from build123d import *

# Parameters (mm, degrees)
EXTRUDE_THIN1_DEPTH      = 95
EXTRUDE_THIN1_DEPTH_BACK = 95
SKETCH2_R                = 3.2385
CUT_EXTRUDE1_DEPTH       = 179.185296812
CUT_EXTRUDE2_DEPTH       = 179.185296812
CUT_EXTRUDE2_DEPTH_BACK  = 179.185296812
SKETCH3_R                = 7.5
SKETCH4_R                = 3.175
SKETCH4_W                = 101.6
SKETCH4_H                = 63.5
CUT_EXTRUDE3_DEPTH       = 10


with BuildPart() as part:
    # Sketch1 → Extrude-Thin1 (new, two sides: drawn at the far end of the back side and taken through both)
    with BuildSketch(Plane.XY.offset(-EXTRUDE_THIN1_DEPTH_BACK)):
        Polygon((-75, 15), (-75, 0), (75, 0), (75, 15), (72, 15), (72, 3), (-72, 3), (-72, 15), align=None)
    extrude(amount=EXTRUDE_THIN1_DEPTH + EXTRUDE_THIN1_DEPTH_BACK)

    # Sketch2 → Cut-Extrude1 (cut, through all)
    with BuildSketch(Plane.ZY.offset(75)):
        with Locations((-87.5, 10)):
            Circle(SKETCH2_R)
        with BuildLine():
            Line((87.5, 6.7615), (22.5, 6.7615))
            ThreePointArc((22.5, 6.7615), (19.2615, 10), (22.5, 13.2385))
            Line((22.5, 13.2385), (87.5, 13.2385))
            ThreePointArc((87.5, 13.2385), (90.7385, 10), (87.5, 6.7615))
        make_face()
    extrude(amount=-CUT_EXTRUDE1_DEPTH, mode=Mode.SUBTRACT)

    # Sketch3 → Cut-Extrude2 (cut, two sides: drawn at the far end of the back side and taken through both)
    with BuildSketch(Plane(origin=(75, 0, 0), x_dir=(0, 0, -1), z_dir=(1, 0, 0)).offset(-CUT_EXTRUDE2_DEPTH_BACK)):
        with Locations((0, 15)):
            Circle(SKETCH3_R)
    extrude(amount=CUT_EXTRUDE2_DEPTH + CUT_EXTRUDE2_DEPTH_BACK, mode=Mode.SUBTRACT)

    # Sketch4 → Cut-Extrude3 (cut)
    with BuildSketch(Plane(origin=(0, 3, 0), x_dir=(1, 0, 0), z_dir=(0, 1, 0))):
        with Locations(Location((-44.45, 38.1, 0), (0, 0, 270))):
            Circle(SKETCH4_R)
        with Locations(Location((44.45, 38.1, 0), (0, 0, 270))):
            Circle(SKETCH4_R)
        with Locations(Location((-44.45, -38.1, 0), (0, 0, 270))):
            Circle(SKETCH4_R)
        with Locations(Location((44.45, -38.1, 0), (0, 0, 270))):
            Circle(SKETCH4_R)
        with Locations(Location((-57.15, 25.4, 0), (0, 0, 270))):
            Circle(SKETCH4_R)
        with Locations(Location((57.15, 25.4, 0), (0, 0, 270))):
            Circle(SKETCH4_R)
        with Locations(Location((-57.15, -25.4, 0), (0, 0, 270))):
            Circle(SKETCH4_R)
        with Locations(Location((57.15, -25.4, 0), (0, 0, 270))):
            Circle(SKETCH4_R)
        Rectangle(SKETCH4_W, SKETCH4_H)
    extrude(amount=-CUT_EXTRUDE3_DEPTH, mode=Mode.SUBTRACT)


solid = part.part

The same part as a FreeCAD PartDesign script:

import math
import FreeCAD as App
import Part
import Sketcher

V = App.Vector


def add_polygon(sketch, points):
    """Adds a closed chain of lines whose ends are joined by coincident constraints."""
    first, n = sketch.GeometryCount, len(points)
    for a, b in zip(points, points[1:] + points[:1]):
        sketch.addGeometry(Part.LineSegment(App.Vector(*a, 0), App.Vector(*b, 0)), False)
    for i in range(n):
        sketch.addConstraint(Sketcher.Constraint("Coincident", first + i, 2, first + (i + 1) % n, 1))

doc = App.newDocument("Part")
params = doc.addObject("Spreadsheet::Sheet", "Params")
for row, (alias, value) in enumerate([
    ("sketch1_width", "150 mm"),
    ("sketch1_width2", "3 mm"),
    ("sketch1_height", "15 mm"),
    ("sketch1_height2", "12 mm"),
    ("pad1_length", "95 mm"),
    ("pad1_length2", "95 mm"),
    ("sketch2_height", "65 mm"),
    ("sketch3_diameter", "15 mm"),
    ("sketch4_diameter", "6.35 mm"),
    ("sketch4_width", "101.6 mm"),
    ("sketch4_height", "63.5 mm"),
    ("pocket3_length", "10 mm"),
], start=1):
    params.set(f"A{row}", alias)
    params.set(f"B{row}", "=" + value)
    params.setAlias(f"B{row}", alias)

body = doc.addObject("PartDesign::Body", "Body")

# Sketch on XY plane
sketch1 = doc.addObject("Sketcher::SketchObject", "Sketch")
body.addObject(sketch1)
sketch1.AttachmentSupport = (doc.XY_Plane, [""])
sketch1.MapMode = "FlatFace"
add_polygon(sketch1, [(-75, 15), (-75, 0), (75, 0), (75, 15), (72, 15), (72, 3), (-72, 3), (-72, 15)])  # lines 0-7
sketch1.addConstraint(Sketcher.Constraint("Vertical", 0))
sketch1.addConstraint(Sketcher.Constraint("Horizontal", 1))
sketch1.addConstraint(Sketcher.Constraint("Vertical", 2))
sketch1.addConstraint(Sketcher.Constraint("Horizontal", 3))
sketch1.addConstraint(Sketcher.Constraint("Vertical", 4))
sketch1.addConstraint(Sketcher.Constraint("Horizontal", 5))
sketch1.addConstraint(Sketcher.Constraint("Vertical", 6))
sketch1.addConstraint(Sketcher.Constraint("Horizontal", 7))
sketch1.addConstraint(Sketcher.Constraint("Symmetric", 0, 2, 1, 2, -1, 1))
sketch1.addConstraint(Sketcher.Constraint("Symmetric", 3, 2, 6, 2, -2))
sketch1.addConstraint(Sketcher.Constraint("DistanceX", 1, 1, 1, 2, 150.0))
sketch1.addConstraint(Sketcher.Constraint("DistanceX", 3, 2, 3, 1, 3.0))
sketch1.addConstraint(Sketcher.Constraint("DistanceY", 0, 2, 0, 1, 15.0))
sketch1.addConstraint(Sketcher.Constraint("DistanceY", 4, 2, 4, 1, 12.0))
sketch1.setExpression("Constraints[18]", "Params.sketch1_width")
sketch1.setExpression("Constraints[19]", "Params.sketch1_width2")
sketch1.setExpression("Constraints[20]", "Params.sketch1_height")
sketch1.setExpression("Constraints[21]", "Params.sketch1_height2")
pad1 = doc.addObject("PartDesign::Pad", "Pad")
body.addObject(pad1)
pad1.Profile = sketch1
pad1.Type = "TwoLengths"
pad1.setExpression("Length", "Params.pad1_length")
pad1.setExpression("Length2", "Params.pad1_length2")

# Sketch on YZ plane
sketch2 = doc.addObject("Sketcher::SketchObject", "Sketch001")
body.addObject(sketch2)
sketch2.AttachmentSupport = (doc.YZ_Plane, [""])
sketch2.MapMode = "FlatFace"
sketch2.AttachmentOffset = App.Placement(V(0, 0, -75), App.Rotation())
sketch2.addGeometry(Part.Circle(V(10, -87.5, 0), V(0, 0, 1), 3.2), False)
sketch2.addGeometry(Part.LineSegment(V(6.8, 22.5, 0), V(6.8, 87.5, 0)), False)
sketch2.addGeometry(Part.ArcOfCircle(Part.Circle(V(10, 87.5, 0), V(0, 0, 1), 3.2), math.radians(0), math.radians(180)), False)
sketch2.addGeometry(Part.LineSegment(V(13.2, 87.5, 0), V(13.2, 22.5, 0)), False)
sketch2.addGeometry(Part.ArcOfCircle(Part.Circle(V(10, 22.5, 0), V(0, 0, 1), 3.2), math.radians(180), math.radians(360)), False)
sketch2.addConstraint(Sketcher.Constraint("Tangent", 1, 2, 2, 2))
sketch2.addConstraint(Sketcher.Constraint("Tangent", 2, 1, 3, 1))
sketch2.addConstraint(Sketcher.Constraint("Tangent", 3, 2, 4, 2))
sketch2.addConstraint(Sketcher.Constraint("Tangent", 4, 1, 1, 1))
sketch2.addConstraint(Sketcher.Constraint("Vertical", 1))
sketch2.addConstraint(Sketcher.Constraint("Vertical", 3))
sketch2.addConstraint(Sketcher.Constraint("Equal", 0, 2))
sketch2.addConstraint(Sketcher.Constraint("Symmetric", 0, 3, 2, 3, -1))
sketch2.addConstraint(Sketcher.Constraint("DistanceY", 1, 1, 1, 2, 65.0))
sketch2.addConstraint(Sketcher.Constraint("Diameter", 0, 6.477))
sketch2.addConstraint(Sketcher.Constraint("DistanceX", -1, 1, 0, 3, 10.0))
sketch2.addConstraint(Sketcher.Constraint("DistanceY", 0, 3, 2, 3, 175.0))
sketch2.setExpression("Constraints[8]", "Params.sketch2_height")
pocket1 = doc.addObject("PartDesign::Pocket", "Pocket")
body.addObject(pocket1)
pocket1.Profile = sketch2
pocket1.Type = "ThroughAll"
pocket1.Reversed = True

# Sketch on YZ plane
sketch3 = doc.addObject("Sketcher::SketchObject", "Sketch002")
body.addObject(sketch3)
sketch3.AttachmentSupport = (doc.YZ_Plane, [""])
sketch3.MapMode = "FlatFace"
sketch3.AttachmentOffset = App.Placement(V(0, 0, 75), App.Rotation())
sketch3.addGeometry(Part.Circle(V(15, 0, 0), V(0, 0, 1), 8), False)
sketch3.addConstraint(Sketcher.Constraint("PointOnObject", 0, 3, -1))
sketch3.addConstraint(Sketcher.Constraint("Diameter", 0, 15.0))
sketch3.addConstraint(Sketcher.Constraint("DistanceX", -1, 1, 0, 3, 15.0))
sketch3.setExpression("Constraints[1]", "Params.sketch3_diameter")
pocket2 = doc.addObject("PartDesign::Pocket", "Pocket001")
body.addObject(pocket2)
pocket2.Profile = sketch3
pocket2.Type = "ThroughAll"
pocket2.Midplane = True

# Sketch on XZ plane
sketch4 = doc.addObject("Sketcher::SketchObject", "Sketch003")
body.addObject(sketch4)
sketch4.AttachmentSupport = (doc.XZ_Plane, [""])
sketch4.MapMode = "FlatFace"
sketch4.AttachmentOffset = App.Placement(V(0, 0, -3), App.Rotation())
sketch4.addGeometry(Part.Circle(V(-44.5, -38.1, 0), V(0, 0, 1), 3.2), False)  # 0
sketch4.addGeometry(Part.Circle(V(44.5, -38.1, 0), V(0, 0, 1), 3.2), False)  # 1
sketch4.addGeometry(Part.Circle(V(-44.5, 38.1, 0), V(0, 0, 1), 3.2), False)  # 2
sketch4.addGeometry(Part.Circle(V(44.5, 38.1, 0), V(0, 0, 1), 3.2), False)  # 3
sketch4.addGeometry(Part.Circle(V(-57.1, -25.4, 0), V(0, 0, 1), 3.2), False)  # 4
sketch4.addGeometry(Part.Circle(V(57.1, -25.4, 0), V(0, 0, 1), 3.2), False)  # 5
sketch4.addGeometry(Part.Circle(V(-57.1, 25.4, 0), V(0, 0, 1), 3.2), False)  # 6
sketch4.addGeometry(Part.Circle(V(57.1, 25.4, 0), V(0, 0, 1), 3.2), False)  # 7
add_polygon(sketch4, [(-50.8, -31.8), (-50.8, 31.8), (50.8, 31.8), (50.8, -31.8)])  # lines 8-11
sketch4.addConstraint(Sketcher.Constraint("Vertical", 8))
sketch4.addConstraint(Sketcher.Constraint("Horizontal", 9))
sketch4.addConstraint(Sketcher.Constraint("Vertical", 10))
sketch4.addConstraint(Sketcher.Constraint("Horizontal", 11))
sketch4.addConstraint(Sketcher.Constraint("Equal", 0, 1))
sketch4.addConstraint(Sketcher.Constraint("Equal", 1, 2))
sketch4.addConstraint(Sketcher.Constraint("Equal", 2, 3))
sketch4.addConstraint(Sketcher.Constraint("Equal", 3, 4))
sketch4.addConstraint(Sketcher.Constraint("Equal", 4, 5))
sketch4.addConstraint(Sketcher.Constraint("Equal", 5, 6))
sketch4.addConstraint(Sketcher.Constraint("Equal", 6, 7))
sketch4.addConstraint(Sketcher.Constraint("Symmetric", 1, 3, 2, 3, -1, 1))
sketch4.addConstraint(Sketcher.Constraint("Symmetric", 0, 3, 3, 3, -1, 1))
sketch4.addConstraint(Sketcher.Constraint("Symmetric", 5, 3, 6, 3, -1, 1))
sketch4.addConstraint(Sketcher.Constraint("Symmetric", 4, 3, 7, 3, -1, 1))
sketch4.addConstraint(Sketcher.Constraint("Symmetric", 8, 2, 10, 2, -1, 1))
sketch4.addConstraint(Sketcher.Constraint("Symmetric", 0, 3, 1, 3, -2))
sketch4.addConstraint(Sketcher.Constraint("Symmetric", 4, 3, 5, 3, -2))
sketch4.addConstraint(Sketcher.Constraint("Diameter", 0, 6.35))
sketch4.addConstraint(Sketcher.Constraint("DistanceX", 9, 1, 9, 2, 101.6))
sketch4.addConstraint(Sketcher.Constraint("DistanceY", 8, 1, 8, 2, 63.5))
sketch4.addConstraint(Sketcher.Constraint("DistanceY", 0, 3, -1, 1, 38.1))
sketch4.addConstraint(Sketcher.Constraint("DistanceY", 4, 3, -1, 1, 25.4))
sketch4.addConstraint(Sketcher.Constraint("DistanceX", 0, 3, 1, 3, 88.9))
sketch4.addConstraint(Sketcher.Constraint("DistanceX", 4, 3, 0, 3, 12.7))
sketch4.setExpression("Constraints[22]", "Params.sketch4_diameter")
sketch4.setExpression("Constraints[23]", "Params.sketch4_width")
sketch4.setExpression("Constraints[24]", "Params.sketch4_height")
pocket3 = doc.addObject("PartDesign::Pocket", "Pocket002")
body.addObject(pocket3)
pocket3.Profile = sketch4
pocket3.setExpression("Length", "Params.pocket3_length")
pocket3.Reversed = True

doc.recompute()
